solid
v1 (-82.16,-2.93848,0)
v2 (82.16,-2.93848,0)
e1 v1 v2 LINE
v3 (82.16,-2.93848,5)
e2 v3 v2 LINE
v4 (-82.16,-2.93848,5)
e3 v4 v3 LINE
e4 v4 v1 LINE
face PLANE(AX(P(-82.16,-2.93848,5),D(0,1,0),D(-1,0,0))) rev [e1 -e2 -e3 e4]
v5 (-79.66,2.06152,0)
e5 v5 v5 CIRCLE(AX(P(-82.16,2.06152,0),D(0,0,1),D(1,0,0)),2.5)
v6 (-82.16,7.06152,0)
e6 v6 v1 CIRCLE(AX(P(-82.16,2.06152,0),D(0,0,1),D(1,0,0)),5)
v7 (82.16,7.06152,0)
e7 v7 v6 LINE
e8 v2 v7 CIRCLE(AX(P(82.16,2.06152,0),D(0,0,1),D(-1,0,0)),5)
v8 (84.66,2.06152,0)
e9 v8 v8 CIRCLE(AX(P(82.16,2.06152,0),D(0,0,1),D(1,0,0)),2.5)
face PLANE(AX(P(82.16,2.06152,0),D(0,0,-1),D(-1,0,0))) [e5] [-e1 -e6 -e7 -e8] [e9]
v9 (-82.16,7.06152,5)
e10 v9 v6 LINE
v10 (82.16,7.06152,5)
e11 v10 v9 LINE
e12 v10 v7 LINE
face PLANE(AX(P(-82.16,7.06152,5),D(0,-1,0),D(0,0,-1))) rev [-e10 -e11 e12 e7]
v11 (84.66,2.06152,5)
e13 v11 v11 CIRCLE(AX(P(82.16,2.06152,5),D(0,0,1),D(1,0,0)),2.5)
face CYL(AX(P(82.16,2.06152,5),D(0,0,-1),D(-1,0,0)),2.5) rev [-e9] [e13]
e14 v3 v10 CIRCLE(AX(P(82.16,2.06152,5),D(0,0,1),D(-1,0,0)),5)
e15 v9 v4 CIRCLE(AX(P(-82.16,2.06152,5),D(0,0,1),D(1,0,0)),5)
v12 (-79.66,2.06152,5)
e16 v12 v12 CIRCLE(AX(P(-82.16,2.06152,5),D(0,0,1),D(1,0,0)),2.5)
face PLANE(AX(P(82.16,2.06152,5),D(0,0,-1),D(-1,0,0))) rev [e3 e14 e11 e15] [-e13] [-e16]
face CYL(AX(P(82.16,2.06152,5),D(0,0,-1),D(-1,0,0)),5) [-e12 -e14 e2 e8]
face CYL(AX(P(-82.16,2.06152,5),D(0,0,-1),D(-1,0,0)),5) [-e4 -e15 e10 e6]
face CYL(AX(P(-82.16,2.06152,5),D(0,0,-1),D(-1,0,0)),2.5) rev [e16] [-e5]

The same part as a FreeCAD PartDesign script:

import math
import FreeCAD as App
import Part
import Sketcher
Q = App.Units.Quantity

doc = App.newDocument("Part")
body = doc.addObject("PartDesign::Body", "Body")

sketch1 = body.newObject("Sketcher::SketchObject", "Sketch")
sketch1.AttachmentSupport = (doc.getObject("XY_Plane"), [""])
sketch1.MapMode = "FlatFace"
sketch1.addGeometry(Part.LineSegment(App.Vector(82.2, 7.1, 0), App.Vector(-82.2, 7.1, 0)), False)
sketch1.addGeometry(Part.ArcOfCircle(Part.Circle(App.Vector(-82.2, 2.1, 0), App.Vector(0, 0, 1), 5), math.radians(90), math.radians(270)), False)
sketch1.addGeometry(Part.LineSegment(App.Vector(-82.2, -2.9, 0), App.Vector(82.2, -2.9, 0)), False)
sketch1.addGeometry(Part.ArcOfCircle(Part.Circle(App.Vector(82.2, 2.1, 0), App.Vector(0, 0, 1), 5), math.radians(-90), math.radians(90)), False)
sketch1.addGeometry(Part.Circle(App.Vector(82.2, 2.1, 0), App.Vector(0, 0, 1), 2.5), False)
sketch1.addGeometry(Part.Circle(App.Vector(-82.2, 2.1, 0), App.Vector(0, 0, 1), 2.5), False)
sketch1.addConstraint(Sketcher.Constraint("Tangent", 0, 2, 1, 1))
sketch1.addConstraint(Sketcher.Constraint("Tangent", 1, 2, 2, 1))
sketch1.addConstraint(Sketcher.Constraint("Tangent", 2, 2, 3, 1))
sketch1.addConstraint(Sketcher.Constraint("Tangent", 3, 2, 0, 1))
sketch1.addConstraint(Sketcher.Constraint("Horizontal", 0))
sketch1.addConstraint(Sketcher.Constraint("Horizontal", 2))
sketch1.addConstraint(Sketcher.Constraint("Coincident", 4, 3, 3, 3))
sketch1.addConstraint(Sketcher.Constraint("Coincident", 5, 3, 1, 3))
sketch1.addConstraint(Sketcher.Constraint("Equal", 4, 5))
sketch1.addConstraint(Sketcher.Constraint("Diameter", 4, Q("5 mm")))
sketch1.addConstraint(Sketcher.Constraint("Radius", 1, Q("5 mm")))
sketch1.addConstraint(Sketcher.Constraint("DistanceX", 0, 2, 0, 1, Q("164.32 mm")))
sketch1.addConstraint(Sketcher.Constraint("DistanceX", 1, 3, -1, 1, Q("82.16 mm")))
sketch1.addConstraint(Sketcher.Constraint("DistanceY", -1, 1, 1, 3, Q("2.06152 mm")))
pad1 = body.newObject("PartDesign::Pad", "Pad")
pad1.Profile = sketch1
pad1.Length = 5

doc.recompute()
